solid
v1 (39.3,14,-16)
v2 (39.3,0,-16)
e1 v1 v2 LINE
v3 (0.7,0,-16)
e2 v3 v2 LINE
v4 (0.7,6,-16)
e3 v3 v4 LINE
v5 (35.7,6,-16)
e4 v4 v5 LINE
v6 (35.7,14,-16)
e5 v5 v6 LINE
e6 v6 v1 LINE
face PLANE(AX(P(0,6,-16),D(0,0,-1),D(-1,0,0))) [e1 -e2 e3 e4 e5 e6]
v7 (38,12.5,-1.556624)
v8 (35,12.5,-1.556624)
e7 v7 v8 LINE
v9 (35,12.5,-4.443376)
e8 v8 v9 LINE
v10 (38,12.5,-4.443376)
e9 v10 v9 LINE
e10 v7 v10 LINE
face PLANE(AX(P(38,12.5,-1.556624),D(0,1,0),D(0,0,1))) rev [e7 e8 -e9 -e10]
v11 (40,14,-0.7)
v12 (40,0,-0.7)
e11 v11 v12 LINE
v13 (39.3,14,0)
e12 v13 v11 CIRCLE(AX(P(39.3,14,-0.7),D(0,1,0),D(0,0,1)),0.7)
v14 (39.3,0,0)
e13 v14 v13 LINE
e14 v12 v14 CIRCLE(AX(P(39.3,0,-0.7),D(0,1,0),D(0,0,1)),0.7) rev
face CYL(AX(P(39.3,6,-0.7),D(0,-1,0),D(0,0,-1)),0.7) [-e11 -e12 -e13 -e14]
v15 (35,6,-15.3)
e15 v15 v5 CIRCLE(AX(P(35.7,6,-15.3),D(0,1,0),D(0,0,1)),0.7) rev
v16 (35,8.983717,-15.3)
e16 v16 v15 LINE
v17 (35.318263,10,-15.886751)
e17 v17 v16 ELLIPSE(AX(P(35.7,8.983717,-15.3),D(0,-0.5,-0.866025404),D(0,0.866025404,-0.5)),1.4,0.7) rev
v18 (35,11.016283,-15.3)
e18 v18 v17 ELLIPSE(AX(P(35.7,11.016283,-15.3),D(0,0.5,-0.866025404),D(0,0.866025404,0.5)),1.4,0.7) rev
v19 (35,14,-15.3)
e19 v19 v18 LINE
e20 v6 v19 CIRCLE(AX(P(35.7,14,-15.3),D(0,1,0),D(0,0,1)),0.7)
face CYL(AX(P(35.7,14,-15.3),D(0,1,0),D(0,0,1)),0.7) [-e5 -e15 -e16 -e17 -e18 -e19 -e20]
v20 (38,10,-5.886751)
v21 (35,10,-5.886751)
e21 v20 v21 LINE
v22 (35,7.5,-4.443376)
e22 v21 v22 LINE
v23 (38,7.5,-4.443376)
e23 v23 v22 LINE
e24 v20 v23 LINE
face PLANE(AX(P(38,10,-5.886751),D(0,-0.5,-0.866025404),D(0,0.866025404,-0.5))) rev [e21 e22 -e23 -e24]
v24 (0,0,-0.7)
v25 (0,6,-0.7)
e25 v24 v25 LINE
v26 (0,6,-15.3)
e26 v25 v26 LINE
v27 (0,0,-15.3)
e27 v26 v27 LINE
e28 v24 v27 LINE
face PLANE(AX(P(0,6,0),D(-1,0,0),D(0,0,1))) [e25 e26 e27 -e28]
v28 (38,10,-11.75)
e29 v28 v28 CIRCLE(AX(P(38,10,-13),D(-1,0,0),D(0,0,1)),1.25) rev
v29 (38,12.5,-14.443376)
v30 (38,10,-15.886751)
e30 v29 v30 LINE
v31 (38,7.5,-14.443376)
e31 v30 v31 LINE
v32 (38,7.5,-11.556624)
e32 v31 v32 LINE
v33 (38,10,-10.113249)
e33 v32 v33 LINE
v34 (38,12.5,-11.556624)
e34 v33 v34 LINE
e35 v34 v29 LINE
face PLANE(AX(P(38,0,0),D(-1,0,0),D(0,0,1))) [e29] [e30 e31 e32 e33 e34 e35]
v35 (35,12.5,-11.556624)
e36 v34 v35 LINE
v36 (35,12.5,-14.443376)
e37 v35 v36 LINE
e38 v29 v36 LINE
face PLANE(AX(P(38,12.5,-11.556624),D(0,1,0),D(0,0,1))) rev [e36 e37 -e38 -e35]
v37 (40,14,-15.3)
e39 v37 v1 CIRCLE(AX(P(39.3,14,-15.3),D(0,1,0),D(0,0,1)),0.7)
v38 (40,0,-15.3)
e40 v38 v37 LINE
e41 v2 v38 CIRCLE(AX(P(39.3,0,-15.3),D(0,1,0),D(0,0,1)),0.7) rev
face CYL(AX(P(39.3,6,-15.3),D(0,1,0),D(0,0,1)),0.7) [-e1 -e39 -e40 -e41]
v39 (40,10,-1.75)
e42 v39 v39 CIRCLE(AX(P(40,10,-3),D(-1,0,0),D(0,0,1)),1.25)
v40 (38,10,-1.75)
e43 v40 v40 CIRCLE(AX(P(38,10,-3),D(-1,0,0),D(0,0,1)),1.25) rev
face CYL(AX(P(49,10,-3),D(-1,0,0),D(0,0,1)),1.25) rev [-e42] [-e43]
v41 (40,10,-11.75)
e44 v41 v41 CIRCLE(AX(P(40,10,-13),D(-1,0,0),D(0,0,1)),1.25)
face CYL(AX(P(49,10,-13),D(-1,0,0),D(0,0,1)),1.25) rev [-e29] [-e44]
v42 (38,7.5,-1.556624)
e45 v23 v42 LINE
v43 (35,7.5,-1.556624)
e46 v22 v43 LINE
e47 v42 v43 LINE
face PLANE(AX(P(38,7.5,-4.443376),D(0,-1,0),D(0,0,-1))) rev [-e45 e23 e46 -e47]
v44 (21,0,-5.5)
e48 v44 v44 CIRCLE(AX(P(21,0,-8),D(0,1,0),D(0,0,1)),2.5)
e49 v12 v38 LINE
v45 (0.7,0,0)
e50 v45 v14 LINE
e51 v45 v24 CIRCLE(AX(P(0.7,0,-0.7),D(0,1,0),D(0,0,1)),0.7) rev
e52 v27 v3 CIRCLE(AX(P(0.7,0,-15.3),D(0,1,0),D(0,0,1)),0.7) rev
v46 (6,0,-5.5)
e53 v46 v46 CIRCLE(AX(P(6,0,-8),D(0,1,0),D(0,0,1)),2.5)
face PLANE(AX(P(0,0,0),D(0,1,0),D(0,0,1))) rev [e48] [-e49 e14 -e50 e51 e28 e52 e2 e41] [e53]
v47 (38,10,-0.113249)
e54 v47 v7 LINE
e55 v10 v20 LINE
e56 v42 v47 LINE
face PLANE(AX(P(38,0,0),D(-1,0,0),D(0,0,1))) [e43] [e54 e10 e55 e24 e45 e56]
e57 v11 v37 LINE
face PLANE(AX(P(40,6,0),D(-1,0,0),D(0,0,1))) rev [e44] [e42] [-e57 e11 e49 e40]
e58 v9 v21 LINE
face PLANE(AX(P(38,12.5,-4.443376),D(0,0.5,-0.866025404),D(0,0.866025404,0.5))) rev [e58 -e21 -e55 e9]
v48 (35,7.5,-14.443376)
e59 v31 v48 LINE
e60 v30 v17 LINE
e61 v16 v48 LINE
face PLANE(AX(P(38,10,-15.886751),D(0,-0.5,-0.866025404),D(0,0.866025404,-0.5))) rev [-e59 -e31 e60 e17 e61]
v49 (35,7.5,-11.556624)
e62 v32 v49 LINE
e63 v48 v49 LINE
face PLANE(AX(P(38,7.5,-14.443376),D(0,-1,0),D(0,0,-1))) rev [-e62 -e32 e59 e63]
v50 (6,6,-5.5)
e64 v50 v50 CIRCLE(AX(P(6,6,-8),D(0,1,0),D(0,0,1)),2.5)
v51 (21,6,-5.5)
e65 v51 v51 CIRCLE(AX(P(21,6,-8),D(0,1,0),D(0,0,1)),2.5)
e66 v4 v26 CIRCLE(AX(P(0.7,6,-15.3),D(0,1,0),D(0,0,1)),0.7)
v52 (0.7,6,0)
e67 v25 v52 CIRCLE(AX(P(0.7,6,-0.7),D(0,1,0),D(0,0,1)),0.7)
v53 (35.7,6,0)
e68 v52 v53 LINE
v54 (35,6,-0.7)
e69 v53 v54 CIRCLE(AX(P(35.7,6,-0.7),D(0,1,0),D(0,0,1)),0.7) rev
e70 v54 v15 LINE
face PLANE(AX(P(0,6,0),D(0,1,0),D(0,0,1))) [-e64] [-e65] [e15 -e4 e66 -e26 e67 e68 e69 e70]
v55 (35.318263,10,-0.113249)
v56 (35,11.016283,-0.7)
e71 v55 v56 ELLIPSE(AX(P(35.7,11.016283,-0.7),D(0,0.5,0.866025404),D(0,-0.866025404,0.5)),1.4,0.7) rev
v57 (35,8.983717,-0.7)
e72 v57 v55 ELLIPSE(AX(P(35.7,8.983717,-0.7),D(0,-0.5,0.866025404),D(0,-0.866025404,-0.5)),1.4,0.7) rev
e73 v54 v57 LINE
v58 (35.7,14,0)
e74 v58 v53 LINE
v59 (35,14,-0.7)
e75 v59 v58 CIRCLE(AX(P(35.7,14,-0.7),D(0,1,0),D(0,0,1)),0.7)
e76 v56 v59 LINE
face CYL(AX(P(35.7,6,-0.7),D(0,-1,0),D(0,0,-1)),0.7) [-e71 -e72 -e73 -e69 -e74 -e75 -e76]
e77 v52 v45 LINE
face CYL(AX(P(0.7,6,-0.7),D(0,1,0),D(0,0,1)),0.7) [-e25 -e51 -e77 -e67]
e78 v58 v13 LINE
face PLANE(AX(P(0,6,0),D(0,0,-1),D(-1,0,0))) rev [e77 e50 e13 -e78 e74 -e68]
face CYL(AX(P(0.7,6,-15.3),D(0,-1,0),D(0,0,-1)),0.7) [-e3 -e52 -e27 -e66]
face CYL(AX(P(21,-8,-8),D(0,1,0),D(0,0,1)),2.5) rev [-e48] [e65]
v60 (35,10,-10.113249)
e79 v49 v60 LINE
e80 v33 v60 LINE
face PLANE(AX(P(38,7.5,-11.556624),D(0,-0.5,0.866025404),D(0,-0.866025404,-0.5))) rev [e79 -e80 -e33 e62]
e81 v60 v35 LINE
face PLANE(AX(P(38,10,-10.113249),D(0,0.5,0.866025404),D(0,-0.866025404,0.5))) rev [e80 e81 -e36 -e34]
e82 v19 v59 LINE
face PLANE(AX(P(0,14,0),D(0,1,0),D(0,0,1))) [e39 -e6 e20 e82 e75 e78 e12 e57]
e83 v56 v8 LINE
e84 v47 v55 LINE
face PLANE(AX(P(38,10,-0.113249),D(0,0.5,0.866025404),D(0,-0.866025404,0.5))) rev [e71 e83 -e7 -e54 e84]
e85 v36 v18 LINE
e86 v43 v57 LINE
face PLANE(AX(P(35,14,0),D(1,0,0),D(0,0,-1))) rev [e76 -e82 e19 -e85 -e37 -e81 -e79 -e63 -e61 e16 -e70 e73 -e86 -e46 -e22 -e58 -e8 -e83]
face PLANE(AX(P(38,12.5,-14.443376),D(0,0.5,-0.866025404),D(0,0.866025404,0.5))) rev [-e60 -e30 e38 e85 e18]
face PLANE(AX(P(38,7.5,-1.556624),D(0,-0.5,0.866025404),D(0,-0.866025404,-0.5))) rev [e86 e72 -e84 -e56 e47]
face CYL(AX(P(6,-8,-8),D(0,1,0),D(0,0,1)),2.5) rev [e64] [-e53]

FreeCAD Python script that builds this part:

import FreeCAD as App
import Part
import Sketcher
Q = App.Units.Quantity


def edges_at(feature, points):
    """Names of the edges that pass closest to the given points."""
    edges = feature.Shape.Edges
    near = lambda p: min(range(len(edges)), key=lambda i: edges[i].distToShape(Part.Vertex(*p))[0])
    return sorted({f"Edge{near(p) + 1}" for p in points})


def add_polygon(sketch, points):
    """Adds a closed chain of lines whose ends are joined by coincident constraints."""
    first, n = sketch.GeometryCount, len(points)
    for a, b in zip(points, points[1:] + points[:1]):
        sketch.addGeometry(Part.LineSegment(App.Vector(*a, 0), App.Vector(*b, 0)), False)
    for i in range(n):
        sketch.addConstraint(Sketcher.Constraint("Coincident", first + i, 2, first + (i + 1) % n, 1))

doc = App.newDocument("Part")
body = doc.addObject("PartDesign::Body", "Body")

sketch1 = body.newObject("Sketcher::SketchObject", "Sketch")
sketch1.AttachmentSupport = (doc.getObject("XZ_Plane"), [""])
sketch1.MapMode = "FlatFace"
add_polygon(sketch1, [(0, -16), (0, 0), (40, 0), (40, -16)])
sketch1.addConstraint(Sketcher.Constraint("Vertical", 0))
sketch1.addConstraint(Sketcher.Constraint("Horizontal", 1))
sketch1.addConstraint(Sketcher.Constraint("Vertical", 2))
sketch1.addConstraint(Sketcher.Constraint("Horizontal", 3))
sketch1.addConstraint(Sketcher.Constraint("Coincident", 0, 2, -1, 1))
sketch1.addConstraint(Sketcher.Constraint("DistanceX", 1, 1, 1, 2, Q("40 mm")))
sketch1.addConstraint(Sketcher.Constraint("DistanceY", 0, 1, 0, 2, Q("16 mm")))
pad1 = body.newObject("PartDesign::Pad", "Pad")
pad1.Profile = sketch1
pad1.Length = 6
pad1.Reversed = True

sketch2 = body.newObject("Sketcher::SketchObject", "Sketch001")
sketch2.AttachmentSupport = (doc.getObject("XZ_Plane"), [""])
sketch2.MapMode = "FlatFace"
add_polygon(sketch2, [(35, -16), (35, 0), (40, 0), (40, -16)])
sketch2.addConstraint(Sketcher.Constraint("Vertical", 0))
sketch2.addConstraint(Sketcher.Constraint("Horizontal", 1))
sketch2.addConstraint(Sketcher.Constraint("Vertical", 2))
sketch2.addConstraint(Sketcher.Constraint("Horizontal", 3))
sketch2.addConstraint(Sketcher.Constraint("PointOnObject", 0, 2, -1))
sketch2.addConstraint(Sketcher.Constraint("DistanceX", 1, 1, 1, 2, Q("5 mm")))
sketch2.addConstraint(Sketcher.Constraint("DistanceY", 0, 1, 0, 2, Q("16 mm")))
sketch2.addConstraint(Sketcher.Constraint("DistanceX", -1, 1, 0, 2, Q("35 mm")))
pad2 = body.newObject("PartDesign::Pad", "Pad001")
pad2.Profile = sketch2
pad2.Length = 14
pad2.Reversed = True

sketch3 = body.newObject("Sketcher::SketchObject", "Sketch002")
sketch3.AttachmentSupport = (doc.getObject("XZ_Plane"), [""])
sketch3.MapMode = "FlatFace"
sketch3.AttachmentOffset = App.Placement(App.Vector(0, 0, -6), App.Rotation())
sketch3.addGeometry(Part.Circle(App.Vector(21, -8, 0), App.Vector(0, 0, 1), 2.5), False)
sketch3.addGeometry(Part.Circle(App.Vector(6, -8, 0), App.Vector(0, 0, 1), 2.5), False)
sketch3.addConstraint(Sketcher.Constraint("Equal", 0, 1))
sketch3.addConstraint(Sketcher.Constraint("Horizontal", 0, 3, 1, 3))
sketch3.addConstraint(Sketcher.Constraint("Diameter", 0, Q("5 mm")))
sketch3.addConstraint(Sketcher.Constraint("DistanceX", -1, 1, 0, 3, Q("21 mm")))
sketch3.addConstraint(Sketcher.Constraint("DistanceY", 0, 3, -1, 1, Q("8 mm")))
sketch3.addConstraint(Sketcher.Constraint("DistanceX", -1, 1, 1, 3, Q("6 mm")))
pocket1 = body.newObject("PartDesign::Pocket", "Pocket")
pocket1.Profile = sketch3
pocket1.Length = 14
pocket1.Reversed = True

sketch4 = body.newObject("Sketcher::SketchObject", "Sketch003")
sketch4.AttachmentSupport = (doc.getObject("YZ_Plane"), [""])
sketch4.MapMode = "FlatFace"
sketch4.AttachmentOffset = App.Placement(App.Vector(0, 0, 35), App.Rotation())
sketch4.addGeometry(Part.Circle(App.Vector(10, -13, 0), App.Vector(0, 0, 1), 1.25), False)
sketch4.addGeometry(Part.Circle(App.Vector(10, -3, 0), App.Vector(0, 0, 1), 1.25), False)
sketch4.addConstraint(Sketcher.Constraint("Equal", 0, 1))
sketch4.addConstraint(Sketcher.Constraint("Vertical", 0, 3, 1, 3))
sketch4.addConstraint(Sketcher.Constraint("Diameter", 0, Q("2.5 mm")))
sketch4.addConstraint(Sketcher.Constraint("DistanceX", -1, 1, 0, 3, Q("10 mm")))
sketch4.addConstraint(Sketcher.Constraint("DistanceY", 0, 3, -1, 1, Q("13 mm")))
sketch4.addConstraint(Sketcher.Constraint("DistanceY", 1, 3, -1, 1, Q("3 mm")))
pocket2 = body.newObject("PartDesign::Pocket", "Pocket001")
pocket2.Profile = sketch4
pocket2.Length = 14
pocket2.Reversed = True
doc.recompute()

fillet = body.newObject("PartDesign::Fillet", "Fillet")
fillet.Base = (pocket2, edges_at(pocket2, [
    (40, 7, -16),
    (40, 7, 0),
    (35, 10, -16),
    (35, 10, 0),
    (0, 3, 0),
    (0, 3, -16),
]))
fillet.Radius = 0.7

sketch5 = body.newObject("Sketcher::SketchObject", "Sketch004")
sketch5.AttachmentSupport = (doc.getObject("YZ_Plane"), [""])
sketch5.MapMode = "FlatFace"
sketch5.AttachmentOffset = App.Placement(App.Vector(0, 0, 35), App.Rotation())
add_polygon(sketch5, [(12.5, -11.556624), (12.5, -14.443376), (10, -15.886751), (7.5, -14.443376), (7.5, -11.556624), (10, -10.113249)])
add_polygon(sketch5, [(12.5, -4.443376), (10, -5.886751), (7.5, -4.443376), (7.5, -1.556624), (10, -0.113249), (12.5, -1.556624)])
sketch5.addConstraint(Sketcher.Constraint("Vertical", 0))
sketch5.addConstraint(Sketcher.Constraint("Vertical", 3))
sketch5.addConstraint(Sketcher.Constraint("Vertical", 8))
sketch5.addConstraint(Sketcher.Constraint("Vertical", 11))
sketch5.addConstraint(Sketcher.Constraint("Parallel", 1, 4))
sketch5.addConstraint(Sketcher.Constraint("Parallel", 2, 5))
sketch5.addConstraint(Sketcher.Constraint("Parallel", 4, 6))
sketch5.addConstraint(Sketcher.Constraint("Parallel", 5, 7))
sketch5.addConstraint(Sketcher.Constraint("Parallel", 6, 9))
sketch5.addConstraint(Sketcher.Constraint("Parallel", 7, 10))
sketch5.addConstraint(Sketcher.Constraint("Horizontal", 0, 2, 2, 2))
sketch5.addConstraint(Sketcher.Constraint("Horizontal", 3, 2, 5, 2))
sketch5.addConstraint(Sketcher.Constraint("Horizontal", 8, 2, 10, 2))
sketch5.addConstraint(Sketcher.Constraint("Horizontal", 7, 2, 11, 2))
sketch5.addConstraint(Sketcher.Constraint("Vertical", 1, 2, 4, 2))
sketch5.addConstraint(Sketcher.Constraint("Vertical", 4, 2, 6, 2))
sketch5.addConstraint(Sketcher.Constraint("Vertical", 3, 2, 7, 2))
sketch5.addConstraint(Sketcher.Constraint("Equal", 3, 8))
sketch5.addConstraint(Sketcher.Constraint("Angle", 1, Q("-150 deg")))
sketch5.addConstraint(Sketcher.Constraint("DistanceX", -1, 1, 1, 2, Q("10 mm")))
sketch5.addConstraint(Sketcher.Constraint("DistanceX", 2, 2, 0, 2, Q("5 mm")))
sketch5.addConstraint(Sketcher.Constraint("DistanceY", 2, 2, 7, 2, Q("10 mm")))
sketch5.addConstraint(Sketcher.Constraint("DistanceY", 0, 2, 0, 1, Q("2.886751 mm")))
sketch5.addConstraint(Sketcher.Constraint("DistanceY", 1, 2, -1, 1, Q("15.886751 mm")))
pocket3 = body.newObject("PartDesign::Pocket", "Pocket002")
pocket3.Profile = sketch5
pocket3.Length = 3
pocket3.Reversed = True

doc.recompute()
